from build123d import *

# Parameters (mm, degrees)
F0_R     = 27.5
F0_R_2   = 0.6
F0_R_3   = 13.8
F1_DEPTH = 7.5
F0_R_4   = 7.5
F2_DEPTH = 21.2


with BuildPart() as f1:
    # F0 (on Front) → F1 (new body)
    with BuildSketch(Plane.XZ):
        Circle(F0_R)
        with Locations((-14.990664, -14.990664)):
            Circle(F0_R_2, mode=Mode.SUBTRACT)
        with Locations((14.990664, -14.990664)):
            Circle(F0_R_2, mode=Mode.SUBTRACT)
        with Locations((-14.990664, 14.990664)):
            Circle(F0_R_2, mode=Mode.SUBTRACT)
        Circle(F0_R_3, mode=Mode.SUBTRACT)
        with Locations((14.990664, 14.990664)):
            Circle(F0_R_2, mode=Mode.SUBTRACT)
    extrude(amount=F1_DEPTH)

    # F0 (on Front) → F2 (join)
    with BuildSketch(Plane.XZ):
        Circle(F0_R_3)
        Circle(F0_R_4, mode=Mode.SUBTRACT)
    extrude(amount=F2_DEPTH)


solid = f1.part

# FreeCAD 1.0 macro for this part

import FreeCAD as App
import Part
import Sketcher

V = App.Vector
Q = App.Units.Quantity

doc = App.newDocument("Part")
body = doc.addObject("PartDesign::Body", "Body")

sketch1 = body.newObject("Sketcher::SketchObject", "Sketch")
sketch1.AttachmentSupport = (doc.getObject("XZ_Plane"), [""])
sketch1.MapMode = "FlatFace"
sketch1.addGeometry([
    Part.Circle(V(0, 0, 0), V(0, 0, 1), 27.5),
    Part.Circle(V(-14.990664, -14.990664, 0), V(0, 0, 1), 0.6),
    Part.Circle(V(0, 0, 0), V(0, 0, 1), 13.8),
    Part.Circle(V(14.990664, -14.990664, 0), V(0, 0, 1), 0.6),
    Part.Circle(V(-14.990664, 14.990664, 0), V(0, 0, 1), 0.6),
    Part.Circle(V(14.990664, 14.990664, 0), V(0, 0, 1), 0.6),
], False)
sketch1.addConstraint([
    Sketcher.Constraint("Coincident", 0, 3, -1, 1),
    Sketcher.Constraint("Coincident", 2, 3, -1, 1),
    Sketcher.Constraint("Equal", 1, 3),
    Sketcher.Constraint("Equal", 3, 4),
    Sketcher.Constraint("Equal", 4, 5),
    Sketcher.Constraint("Symmetric", 3, 3, 4, 3, -1, 1),
    Sketcher.Constraint("Symmetric", 1, 3, 5, 3, -1, 1),
    Sketcher.Constraint("Symmetric", 1, 3, 3, 3, -2),
    Sketcher.Constraint("Diameter", 0, Q("55 mm")),
    Sketcher.Constraint("Diameter", 1, Q("1.2 mm")),
    Sketcher.Constraint("Diameter", 2, Q("27.6 mm")),
    Sketcher.Constraint("DistanceX", 1, 3, 3, 3, Q("29.981328 mm")),
    Sketcher.Constraint("DistanceY", 1, 3, 4, 3, Q("29.981328 mm")),
])
pad1 = body.newObject("PartDesign::Pad", "Pad")
pad1.Profile = sketch1
pad1.Length = 7.5

sketch2 = body.newObject("Sketcher::SketchObject", "Sketch001")
sketch2.AttachmentSupport = (doc.getObject("XZ_Plane"), [""])
sketch2.MapMode = "FlatFace"
sketch2.addGeometry([
    Part.Circle(V(0, 0, 0), V(0, 0, 1), 13.8),
    Part.Circle(V(0, 0, 0), V(0, 0, 1), 7.5),
], False)
sketch2.addConstraint([
    Sketcher.Constraint("Coincident", 0, 3, -1, 1),
    Sketcher.Constraint("Coincident", 1, 3, -1, 1),
    Sketcher.Constraint("Diameter", 1, Q("15 mm")),
    Sketcher.Constraint("Diameter", 0, Q("27.6 mm")),
])
pad2 = body.newObject("PartDesign::Pad", "Pad001")
pad2.Profile = sketch2
pad2.Length = 21.2

doc.recompute()
